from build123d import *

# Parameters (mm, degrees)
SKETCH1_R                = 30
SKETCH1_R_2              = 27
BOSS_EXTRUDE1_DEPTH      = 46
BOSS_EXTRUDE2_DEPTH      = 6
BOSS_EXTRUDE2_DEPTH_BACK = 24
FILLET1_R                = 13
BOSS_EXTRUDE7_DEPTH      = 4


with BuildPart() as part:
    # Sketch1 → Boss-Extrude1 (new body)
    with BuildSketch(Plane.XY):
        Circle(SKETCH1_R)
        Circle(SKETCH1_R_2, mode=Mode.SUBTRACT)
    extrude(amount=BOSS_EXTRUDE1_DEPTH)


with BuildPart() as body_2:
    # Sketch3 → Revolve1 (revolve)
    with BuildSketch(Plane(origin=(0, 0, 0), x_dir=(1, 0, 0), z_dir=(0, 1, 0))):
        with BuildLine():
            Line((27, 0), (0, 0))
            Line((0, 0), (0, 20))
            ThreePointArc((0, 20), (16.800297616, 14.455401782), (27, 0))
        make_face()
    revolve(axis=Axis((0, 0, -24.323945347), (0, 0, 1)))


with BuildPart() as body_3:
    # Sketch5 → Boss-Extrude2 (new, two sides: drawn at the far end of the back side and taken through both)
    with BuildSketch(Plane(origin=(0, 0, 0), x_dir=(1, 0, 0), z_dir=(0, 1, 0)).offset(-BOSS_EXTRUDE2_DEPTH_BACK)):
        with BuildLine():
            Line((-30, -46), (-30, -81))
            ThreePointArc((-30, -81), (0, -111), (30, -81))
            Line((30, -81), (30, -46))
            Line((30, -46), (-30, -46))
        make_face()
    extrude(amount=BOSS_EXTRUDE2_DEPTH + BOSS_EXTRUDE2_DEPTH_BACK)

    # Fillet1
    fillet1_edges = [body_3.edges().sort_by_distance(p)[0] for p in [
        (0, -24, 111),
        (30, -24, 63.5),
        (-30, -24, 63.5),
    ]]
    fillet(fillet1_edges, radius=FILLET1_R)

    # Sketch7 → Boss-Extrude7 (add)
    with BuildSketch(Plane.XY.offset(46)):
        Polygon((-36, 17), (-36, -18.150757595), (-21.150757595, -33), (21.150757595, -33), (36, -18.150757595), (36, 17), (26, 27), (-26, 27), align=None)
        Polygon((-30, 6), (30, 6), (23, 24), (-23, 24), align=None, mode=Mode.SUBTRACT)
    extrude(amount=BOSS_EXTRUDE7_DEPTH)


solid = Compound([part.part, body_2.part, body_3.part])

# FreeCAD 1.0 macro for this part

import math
import FreeCAD as App
import Part
import Sketcher


def edges_at(feature, points):
    """Names of the edges that pass closest to the given points."""
    edges = feature.Shape.Edges
    near = lambda p: min(range(len(edges)), key=lambda i: edges[i].distToShape(Part.Vertex(*p))[0])
    return sorted({f"Edge{near(p) + 1}" for p in points})


def add_polygon(sketch, points):
    """Adds a closed chain of lines whose ends are joined by coincident constraints."""
    first, n = sketch.GeometryCount, len(points)
    for a, b in zip(points, points[1:] + points[:1]):
        sketch.addGeometry(Part.LineSegment(App.Vector(*a, 0), App.Vector(*b, 0)), False)
    for i in range(n):
        sketch.addConstraint(Sketcher.Constraint("Coincident", first + i, 2, first + (i + 1) % n, 1))

doc = App.newDocument("Part")
body = doc.addObject("PartDesign::Body", "Body")

sketch1 = body.newObject("Sketcher::SketchObject", "Sketch")
sketch1.AttachmentSupport = (doc.getObject("XY_Plane"), [""])
sketch1.MapMode = "FlatFace"
sketch1.addGeometry(Part.Circle(App.Vector(0, 0, 0), App.Vector(0, 0, 1), 30), False)
sketch1.addGeometry(Part.Circle(App.Vector(0, 0, 0), App.Vector(0, 0, 1), 27), False)
sketch1.addConstraint(Sketcher.Constraint("Coincident", 0, 3, -1, 1))
sketch1.addConstraint(Sketcher.Constraint("Coincident", 1, 3, -1, 1))
sketch1.addConstraint(Sketcher.Constraint("Diameter", 0, 60.0))
sketch1.addConstraint(Sketcher.Constraint("Diameter", 1, 54.0))
pad1 = body.newObject("PartDesign::Pad", "Pad")
pad1.Profile = sketch1
pad1.Length = 46
body2 = doc.addObject("PartDesign::Body", "Body001")

sketch2 = body2.newObject("Sketcher::SketchObject", "Sketch001")
sketch2.AttachmentSupport = (doc.getObject("XZ_Plane001"), [""])
sketch2.MapMode = "FlatFace"
sketch2.addGeometry(Part.LineSegment(App.Vector(0, 0, 0), App.Vector(27, 0, 0)), False)
sketch2.addGeometry(Part.ArcOfCircle(Part.Circle(App.Vector(0, 8, 0), App.Vector(0, 0, 1), 28), math.radians(-90), math.radians(-17)), False)
sketch2.addGeometry(Part.LineSegment(App.Vector(0, -20, 0), App.Vector(0, 0, 0)), False)
sketch2.addConstraint(Sketcher.Constraint("Coincident", 0, 2, 1, 2))
sketch2.addConstraint(Sketcher.Constraint("Coincident", 1, 1, 2, 1))
sketch2.addConstraint(Sketcher.Constraint("Coincident", 2, 2, 0, 1))
sketch2.addConstraint(Sketcher.Constraint("Horizontal", 0))
sketch2.addConstraint(Sketcher.Constraint("Vertical", 2))
sketch2.addConstraint(Sketcher.Constraint("Coincident", 2, 2, -1, 1))
sketch2.addConstraint(Sketcher.Constraint("PointOnObject", 1, 3, -2))
sketch2.addConstraint(Sketcher.Constraint("DistanceX", 0, 1, 0, 2, 27.0))
sketch2.addConstraint(Sketcher.Constraint("DistanceY", 2, 1, 2, 2, 20.0))
revolution = body2.newObject("PartDesign::Revolution", "Revolution")
revolution.Profile = sketch2
revolution.ReferenceAxis = (sketch2, ["V_Axis"])
revolution.Angle = 360
body3 = doc.addObject("PartDesign::Body", "Body002")

sketch3 = body3.newObject("Sketcher::SketchObject", "Sketch002")
sketch3.AttachmentSupport = (doc.getObject("XZ_Plane002"), [""])
sketch3.MapMode = "FlatFace"
sketch3.addGeometry(Part.LineSegment(App.Vector(-30, 46, 0), App.Vector(-30, 81, 0)), False)
sketch3.addGeometry(Part.ArcOfCircle(Part.Circle(App.Vector(0, 81, 0), App.Vector(0, 0, 1), 30), math.radians(0), math.radians(180)), False)
sketch3.addGeometry(Part.LineSegment(App.Vector(30, 81, 0), App.Vector(30, 46, 0)), False)
sketch3.addGeometry(Part.LineSegment(App.Vector(30, 46, 0), App.Vector(-30, 46, 0)), False)
sketch3.addConstraint(Sketcher.Constraint("Tangent", 0, 2, 1, 2))
sketch3.addConstraint(Sketcher.Constraint("Tangent", 1, 1, 2, 1))
sketch3.addConstraint(Sketcher.Constraint("Coincident", 2, 2, 3, 1))
sketch3.addConstraint(Sketcher.Constraint("Coincident", 3, 2, 0, 1))
sketch3.addConstraint(Sketcher.Constraint("Vertical", 0))
sketch3.addConstraint(Sketcher.Constraint("Vertical", 2))
sketch3.addConstraint(Sketcher.Constraint("Horizontal", 3))
sketch3.addConstraint(Sketcher.Constraint("PointOnObject", 1, 3, -2))
sketch3.addConstraint(Sketcher.Constraint("Radius", 1, 30.0))
sketch3.addConstraint(Sketcher.Constraint("DistanceY", 0, 1, 0, 2, 35.0))
sketch3.addConstraint(Sketcher.Constraint("DistanceY", -1, 1, 1, 3, 81.0))
pad2 = body3.newObject("PartDesign::Pad", "Pad001")
pad2.Profile = sketch3
pad2.Type = "TwoLengths"
pad2.Length = 6
pad2.Length2 = 24
pad2.Reversed = True
doc.recompute()

fillet = body3.newObject("PartDesign::Fillet", "Fillet")
fillet.Base = (pad2, edges_at(pad2, [(0, -24, 111), (30, -24, 63.5), (-30, -24, 63.5)]))
fillet.Radius = 13

sketch4 = body3.newObject("Sketcher::SketchObject", "Sketch003")
sketch4.AttachmentSupport = (doc.getObject("XY_Plane002"), [""])
sketch4.MapMode = "FlatFace"
sketch4.AttachmentOffset = App.Placement(App.Vector(0, 0, 46), App.Rotation())
add_polygon(sketch4, [(-36, 17), (-36, -18.150758), (-21.150758, -33), (21.150758, -33), (36, -18.150758), (36, 17), (26, 27), (-26, 27)])
add_polygon(sketch4, [(30, 6), (-30, 6), (-23, 24), (23, 24)])
sketch4.addConstraint(Sketcher.Constraint("Vertical", 0))
sketch4.addConstraint(Sketcher.Constraint("Horizontal", 2))
sketch4.addConstraint(Sketcher.Constraint("Vertical", 4))
sketch4.addConstraint(Sketcher.Constraint("Horizontal", 6))
sketch4.addConstraint(Sketcher.Constraint("Horizontal", 8))
sketch4.addConstraint(Sketcher.Constraint("Horizontal", 10))
sketch4.addConstraint(Sketcher.Constraint("Symmetric", 0, 2, 3, 2, -2))
sketch4.addConstraint(Sketcher.Constraint("Perpendicular", 1, 3))
sketch4.addConstraint(Sketcher.Constraint("Perpendicular", 3, 5))
sketch4.addConstraint(Sketcher.Constraint("Perpendicular", 5, 7))
sketch4.addConstraint(Sketcher.Constraint("Horizontal", 4, 2, 7, 2))
sketch4.addConstraint(Sketcher.Constraint("Equal", 1, 3))
sketch4.addConstraint(Sketcher.Constraint("Equal", 9, 11))
sketch4.addConstraint(Sketcher.Constraint("DistanceX", 6, 2, 6, 1, 52.0))
sketch4.addConstraint(Sketcher.Constraint("DistanceX", 8, 2, 8, 1, 60.0))
sketch4.addConstraint(Sketcher.Constraint("DistanceX", 10, 1, 10, 2, 46.0))
sketch4.addConstraint(Sketcher.Constraint("Distance", 1, 21.0))
sketch4.addConstraint(Sketcher.Constraint("DistanceX", 0, 2, -1, 1, 36.0))
sketch4.addConstraint(Sketcher.Constraint("DistanceY", 1, 2, -1, 1, 33.0))
sketch4.addConstraint(Sketcher.Constraint("DistanceY", -1, 1, 4, 2, 17.0))
sketch4.addConstraint(Sketcher.Constraint("DistanceX", 8, 2, -1, 1, 30.0))
sketch4.addConstraint(Sketcher.Constraint("DistanceY", -1, 1, 8, 2, 6.0))
sketch4.addConstraint(Sketcher.Constraint("DistanceY", -1, 1, 9, 2, 24.0))
pad3 = body3.newObject("PartDesign::Pad", "Pad002")
pad3.Profile = sketch4
pad3.Length = 4

doc.recompute()
